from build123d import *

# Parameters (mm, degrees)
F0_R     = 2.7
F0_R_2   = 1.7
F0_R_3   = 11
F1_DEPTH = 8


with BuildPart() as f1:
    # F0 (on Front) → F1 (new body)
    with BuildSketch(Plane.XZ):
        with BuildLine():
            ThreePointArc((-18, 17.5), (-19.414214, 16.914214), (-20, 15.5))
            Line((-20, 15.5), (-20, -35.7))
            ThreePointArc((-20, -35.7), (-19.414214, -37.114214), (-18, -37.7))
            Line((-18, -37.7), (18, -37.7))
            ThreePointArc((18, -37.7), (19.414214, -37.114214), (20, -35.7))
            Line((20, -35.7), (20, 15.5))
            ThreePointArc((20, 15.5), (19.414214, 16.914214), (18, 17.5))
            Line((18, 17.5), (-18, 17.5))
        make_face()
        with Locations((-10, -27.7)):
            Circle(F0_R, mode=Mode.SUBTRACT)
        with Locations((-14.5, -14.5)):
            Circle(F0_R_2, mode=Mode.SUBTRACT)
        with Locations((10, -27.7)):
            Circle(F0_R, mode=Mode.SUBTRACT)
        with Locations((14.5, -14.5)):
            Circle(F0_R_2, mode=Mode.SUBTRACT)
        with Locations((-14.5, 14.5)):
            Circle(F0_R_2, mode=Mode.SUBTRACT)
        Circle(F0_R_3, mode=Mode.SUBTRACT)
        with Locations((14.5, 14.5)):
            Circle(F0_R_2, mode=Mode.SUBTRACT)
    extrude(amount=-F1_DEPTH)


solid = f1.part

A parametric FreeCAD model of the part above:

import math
import FreeCAD as App
import Part
import Sketcher
Q = App.Units.Quantity

doc = App.newDocument("Part")
body = doc.addObject("PartDesign::Body", "Body")

# Sketch on XZ plane
sketch1 = body.newObject("Sketcher::SketchObject", "Sketch")
sketch1.AttachmentSupport = (doc.getObject("XZ_Plane"), [""])
sketch1.MapMode = "FlatFace"
sketch1.addGeometry(Part.ArcOfCircle(Part.Circle(App.Vector(-18.000001, 15.500001, 0), App.Vector(0, 0, 1), 1.999999), math.radians(89.999957), math.radians(180.000043)), False)
sketch1.addGeometry(Part.LineSegment(App.Vector(-20, 15.5, 0), App.Vector(-20, -35.7, 0)), False)
sketch1.addGeometry(Part.ArcOfCircle(Part.Circle(App.Vector(-18.000001, -35.700001, 0), App.Vector(0, 0, 1), 1.999999), math.radians(179.999957), math.radians(270.000043)), False)
sketch1.addGeometry(Part.LineSegment(App.Vector(-18, -37.7, 0), App.Vector(18, -37.7, 0)), False)
sketch1.addGeometry(Part.ArcOfCircle(Part.Circle(App.Vector(18.000001, -35.700001, 0), App.Vector(0, 0, 1), 1.999999), math.radians(-90.000043), math.radians(0.000043)), False)
sketch1.addGeometry(Part.LineSegment(App.Vector(20, -35.7, 0), App.Vector(20, 15.5, 0)), False)
sketch1.addGeometry(Part.ArcOfCircle(Part.Circle(App.Vector(18.000001, 15.500001, 0), App.Vector(0, 0, 1), 1.999999), math.radians(-0.000043), math.radians(90.000043)), False)
sketch1.addGeometry(Part.LineSegment(App.Vector(18, 17.5, 0), App.Vector(-18, 17.5, 0)), False)
sketch1.addGeometry(Part.Circle(App.Vector(-10, -27.7, 0), App.Vector(0, 0, 1), 2.7), False)
sketch1.addGeometry(Part.Circle(App.Vector(-14.5, -14.5, 0), App.Vector(0, 0, 1), 1.7), False)
sketch1.addGeometry(Part.Circle(App.Vector(10, -27.7, 0), App.Vector(0, 0, 1), 2.7), False)
sketch1.addGeometry(Part.Circle(App.Vector(14.5, -14.5, 0), App.Vector(0, 0, 1), 1.7), False)
sketch1.addGeometry(Part.Circle(App.Vector(-14.5, 14.5, 0), App.Vector(0, 0, 1), 1.7), False)
sketch1.addGeometry(Part.Circle(App.Vector(0, 0, 0), App.Vector(0, 0, 1), 11), False)
sketch1.addGeometry(Part.Circle(App.Vector(14.5, 14.5, 0), App.Vector(0, 0, 1), 1.7), False)
sketch1.addConstraint(Sketcher.Constraint("Tangent", 0, 2, 1, 1))
sketch1.addConstraint(Sketcher.Constraint("Tangent", 1, 2, 2, 1))
sketch1.addConstraint(Sketcher.Constraint("Tangent", 2, 2, 3, 1))
sketch1.addConstraint(Sketcher.Constraint("Tangent", 3, 2, 4, 1))
sketch1.addConstraint(Sketcher.Constraint("Tangent", 4, 2, 5, 1))
sketch1.addConstraint(Sketcher.Constraint("Tangent", 5, 2, 6, 1))
sketch1.addConstraint(Sketcher.Constraint("Tangent", 6, 2, 7, 1))
sketch1.addConstraint(Sketcher.Constraint("Tangent", 7, 2, 0, 1))
sketch1.addConstraint(Sketcher.Constraint("Vertical", 1))
sketch1.addConstraint(Sketcher.Constraint("Horizontal", 3))
sketch1.addConstraint(Sketcher.Constraint("Vertical", 5))
sketch1.addConstraint(Sketcher.Constraint("Horizontal", 7))
sketch1.addConstraint(Sketcher.Constraint("Coincident", 13, 3, -1, 1))
sketch1.addConstraint(Sketcher.Constraint("Equal", 0, 2))
sketch1.addConstraint(Sketcher.Constraint("Equal", 2, 4))
sketch1.addConstraint(Sketcher.Constraint("Equal", 4, 6))
sketch1.addConstraint(Sketcher.Constraint("Equal", 8, 10))
sketch1.addConstraint(Sketcher.Constraint("Equal", 9, 11))
sketch1.addConstraint(Sketcher.Constraint("Equal", 11, 12))
sketch1.addConstraint(Sketcher.Constraint("Equal", 12, 14))
sketch1.addConstraint(Sketcher.Constraint("Symmetric", 11, 3, 12, 3, -1, 1))
sketch1.addConstraint(Sketcher.Constraint("Symmetric", 9, 3, 14, 3, -1, 1))
sketch1.addConstraint(Sketcher.Constraint("Symmetric", 8, 3, 10, 3, -2))
sketch1.addConstraint(Sketcher.Constraint("Symmetric", 9, 3, 11, 3, -2))
sketch1.addConstraint(Sketcher.Constraint("Diameter", 13, Q("22 mm")))
sketch1.addConstraint(Sketcher.Constraint("Radius", 0, Q("1.999999 mm")))
sketch1.addConstraint(Sketcher.Constraint("Diameter", 8, Q("5.4 mm")))
sketch1.addConstraint(Sketcher.Constraint("Diameter", 9, Q("3.4 mm")))
sketch1.addConstraint(Sketcher.Constraint("DistanceX", 3, 1, 3, 2, Q("36 mm")))
sketch1.addConstraint(Sketcher.Constraint("DistanceY", 1, 2, 1, 1, Q("51.2 mm")))
sketch1.addConstraint(Sketcher.Constraint("DistanceX", 0, 3, -1, 1, Q("18.000001 mm")))
sketch1.addConstraint(Sketcher.Constraint("DistanceX", 8, 3, -1, 1, Q("10 mm")))
sketch1.addConstraint(Sketcher.Constraint("DistanceY", 2, 3, 8, 3, Q("8.000001 mm")))
sketch1.addConstraint(Sketcher.Constraint("DistanceY", 9, 3, 0, 3, Q("30.000001 mm")))
sketch1.addConstraint(Sketcher.Constraint("DistanceX", 9, 3, 11, 3, Q("29 mm")))
sketch1.addConstraint(Sketcher.Constraint("DistanceY", 12, 3, 0, 3, Q("1.000001 mm")))
pad1 = body.newObject("PartDesign::Pad", "Pad")
pad1.Profile = sketch1
pad1.Length = 8
pad1.Reversed = True

doc.recompute()
